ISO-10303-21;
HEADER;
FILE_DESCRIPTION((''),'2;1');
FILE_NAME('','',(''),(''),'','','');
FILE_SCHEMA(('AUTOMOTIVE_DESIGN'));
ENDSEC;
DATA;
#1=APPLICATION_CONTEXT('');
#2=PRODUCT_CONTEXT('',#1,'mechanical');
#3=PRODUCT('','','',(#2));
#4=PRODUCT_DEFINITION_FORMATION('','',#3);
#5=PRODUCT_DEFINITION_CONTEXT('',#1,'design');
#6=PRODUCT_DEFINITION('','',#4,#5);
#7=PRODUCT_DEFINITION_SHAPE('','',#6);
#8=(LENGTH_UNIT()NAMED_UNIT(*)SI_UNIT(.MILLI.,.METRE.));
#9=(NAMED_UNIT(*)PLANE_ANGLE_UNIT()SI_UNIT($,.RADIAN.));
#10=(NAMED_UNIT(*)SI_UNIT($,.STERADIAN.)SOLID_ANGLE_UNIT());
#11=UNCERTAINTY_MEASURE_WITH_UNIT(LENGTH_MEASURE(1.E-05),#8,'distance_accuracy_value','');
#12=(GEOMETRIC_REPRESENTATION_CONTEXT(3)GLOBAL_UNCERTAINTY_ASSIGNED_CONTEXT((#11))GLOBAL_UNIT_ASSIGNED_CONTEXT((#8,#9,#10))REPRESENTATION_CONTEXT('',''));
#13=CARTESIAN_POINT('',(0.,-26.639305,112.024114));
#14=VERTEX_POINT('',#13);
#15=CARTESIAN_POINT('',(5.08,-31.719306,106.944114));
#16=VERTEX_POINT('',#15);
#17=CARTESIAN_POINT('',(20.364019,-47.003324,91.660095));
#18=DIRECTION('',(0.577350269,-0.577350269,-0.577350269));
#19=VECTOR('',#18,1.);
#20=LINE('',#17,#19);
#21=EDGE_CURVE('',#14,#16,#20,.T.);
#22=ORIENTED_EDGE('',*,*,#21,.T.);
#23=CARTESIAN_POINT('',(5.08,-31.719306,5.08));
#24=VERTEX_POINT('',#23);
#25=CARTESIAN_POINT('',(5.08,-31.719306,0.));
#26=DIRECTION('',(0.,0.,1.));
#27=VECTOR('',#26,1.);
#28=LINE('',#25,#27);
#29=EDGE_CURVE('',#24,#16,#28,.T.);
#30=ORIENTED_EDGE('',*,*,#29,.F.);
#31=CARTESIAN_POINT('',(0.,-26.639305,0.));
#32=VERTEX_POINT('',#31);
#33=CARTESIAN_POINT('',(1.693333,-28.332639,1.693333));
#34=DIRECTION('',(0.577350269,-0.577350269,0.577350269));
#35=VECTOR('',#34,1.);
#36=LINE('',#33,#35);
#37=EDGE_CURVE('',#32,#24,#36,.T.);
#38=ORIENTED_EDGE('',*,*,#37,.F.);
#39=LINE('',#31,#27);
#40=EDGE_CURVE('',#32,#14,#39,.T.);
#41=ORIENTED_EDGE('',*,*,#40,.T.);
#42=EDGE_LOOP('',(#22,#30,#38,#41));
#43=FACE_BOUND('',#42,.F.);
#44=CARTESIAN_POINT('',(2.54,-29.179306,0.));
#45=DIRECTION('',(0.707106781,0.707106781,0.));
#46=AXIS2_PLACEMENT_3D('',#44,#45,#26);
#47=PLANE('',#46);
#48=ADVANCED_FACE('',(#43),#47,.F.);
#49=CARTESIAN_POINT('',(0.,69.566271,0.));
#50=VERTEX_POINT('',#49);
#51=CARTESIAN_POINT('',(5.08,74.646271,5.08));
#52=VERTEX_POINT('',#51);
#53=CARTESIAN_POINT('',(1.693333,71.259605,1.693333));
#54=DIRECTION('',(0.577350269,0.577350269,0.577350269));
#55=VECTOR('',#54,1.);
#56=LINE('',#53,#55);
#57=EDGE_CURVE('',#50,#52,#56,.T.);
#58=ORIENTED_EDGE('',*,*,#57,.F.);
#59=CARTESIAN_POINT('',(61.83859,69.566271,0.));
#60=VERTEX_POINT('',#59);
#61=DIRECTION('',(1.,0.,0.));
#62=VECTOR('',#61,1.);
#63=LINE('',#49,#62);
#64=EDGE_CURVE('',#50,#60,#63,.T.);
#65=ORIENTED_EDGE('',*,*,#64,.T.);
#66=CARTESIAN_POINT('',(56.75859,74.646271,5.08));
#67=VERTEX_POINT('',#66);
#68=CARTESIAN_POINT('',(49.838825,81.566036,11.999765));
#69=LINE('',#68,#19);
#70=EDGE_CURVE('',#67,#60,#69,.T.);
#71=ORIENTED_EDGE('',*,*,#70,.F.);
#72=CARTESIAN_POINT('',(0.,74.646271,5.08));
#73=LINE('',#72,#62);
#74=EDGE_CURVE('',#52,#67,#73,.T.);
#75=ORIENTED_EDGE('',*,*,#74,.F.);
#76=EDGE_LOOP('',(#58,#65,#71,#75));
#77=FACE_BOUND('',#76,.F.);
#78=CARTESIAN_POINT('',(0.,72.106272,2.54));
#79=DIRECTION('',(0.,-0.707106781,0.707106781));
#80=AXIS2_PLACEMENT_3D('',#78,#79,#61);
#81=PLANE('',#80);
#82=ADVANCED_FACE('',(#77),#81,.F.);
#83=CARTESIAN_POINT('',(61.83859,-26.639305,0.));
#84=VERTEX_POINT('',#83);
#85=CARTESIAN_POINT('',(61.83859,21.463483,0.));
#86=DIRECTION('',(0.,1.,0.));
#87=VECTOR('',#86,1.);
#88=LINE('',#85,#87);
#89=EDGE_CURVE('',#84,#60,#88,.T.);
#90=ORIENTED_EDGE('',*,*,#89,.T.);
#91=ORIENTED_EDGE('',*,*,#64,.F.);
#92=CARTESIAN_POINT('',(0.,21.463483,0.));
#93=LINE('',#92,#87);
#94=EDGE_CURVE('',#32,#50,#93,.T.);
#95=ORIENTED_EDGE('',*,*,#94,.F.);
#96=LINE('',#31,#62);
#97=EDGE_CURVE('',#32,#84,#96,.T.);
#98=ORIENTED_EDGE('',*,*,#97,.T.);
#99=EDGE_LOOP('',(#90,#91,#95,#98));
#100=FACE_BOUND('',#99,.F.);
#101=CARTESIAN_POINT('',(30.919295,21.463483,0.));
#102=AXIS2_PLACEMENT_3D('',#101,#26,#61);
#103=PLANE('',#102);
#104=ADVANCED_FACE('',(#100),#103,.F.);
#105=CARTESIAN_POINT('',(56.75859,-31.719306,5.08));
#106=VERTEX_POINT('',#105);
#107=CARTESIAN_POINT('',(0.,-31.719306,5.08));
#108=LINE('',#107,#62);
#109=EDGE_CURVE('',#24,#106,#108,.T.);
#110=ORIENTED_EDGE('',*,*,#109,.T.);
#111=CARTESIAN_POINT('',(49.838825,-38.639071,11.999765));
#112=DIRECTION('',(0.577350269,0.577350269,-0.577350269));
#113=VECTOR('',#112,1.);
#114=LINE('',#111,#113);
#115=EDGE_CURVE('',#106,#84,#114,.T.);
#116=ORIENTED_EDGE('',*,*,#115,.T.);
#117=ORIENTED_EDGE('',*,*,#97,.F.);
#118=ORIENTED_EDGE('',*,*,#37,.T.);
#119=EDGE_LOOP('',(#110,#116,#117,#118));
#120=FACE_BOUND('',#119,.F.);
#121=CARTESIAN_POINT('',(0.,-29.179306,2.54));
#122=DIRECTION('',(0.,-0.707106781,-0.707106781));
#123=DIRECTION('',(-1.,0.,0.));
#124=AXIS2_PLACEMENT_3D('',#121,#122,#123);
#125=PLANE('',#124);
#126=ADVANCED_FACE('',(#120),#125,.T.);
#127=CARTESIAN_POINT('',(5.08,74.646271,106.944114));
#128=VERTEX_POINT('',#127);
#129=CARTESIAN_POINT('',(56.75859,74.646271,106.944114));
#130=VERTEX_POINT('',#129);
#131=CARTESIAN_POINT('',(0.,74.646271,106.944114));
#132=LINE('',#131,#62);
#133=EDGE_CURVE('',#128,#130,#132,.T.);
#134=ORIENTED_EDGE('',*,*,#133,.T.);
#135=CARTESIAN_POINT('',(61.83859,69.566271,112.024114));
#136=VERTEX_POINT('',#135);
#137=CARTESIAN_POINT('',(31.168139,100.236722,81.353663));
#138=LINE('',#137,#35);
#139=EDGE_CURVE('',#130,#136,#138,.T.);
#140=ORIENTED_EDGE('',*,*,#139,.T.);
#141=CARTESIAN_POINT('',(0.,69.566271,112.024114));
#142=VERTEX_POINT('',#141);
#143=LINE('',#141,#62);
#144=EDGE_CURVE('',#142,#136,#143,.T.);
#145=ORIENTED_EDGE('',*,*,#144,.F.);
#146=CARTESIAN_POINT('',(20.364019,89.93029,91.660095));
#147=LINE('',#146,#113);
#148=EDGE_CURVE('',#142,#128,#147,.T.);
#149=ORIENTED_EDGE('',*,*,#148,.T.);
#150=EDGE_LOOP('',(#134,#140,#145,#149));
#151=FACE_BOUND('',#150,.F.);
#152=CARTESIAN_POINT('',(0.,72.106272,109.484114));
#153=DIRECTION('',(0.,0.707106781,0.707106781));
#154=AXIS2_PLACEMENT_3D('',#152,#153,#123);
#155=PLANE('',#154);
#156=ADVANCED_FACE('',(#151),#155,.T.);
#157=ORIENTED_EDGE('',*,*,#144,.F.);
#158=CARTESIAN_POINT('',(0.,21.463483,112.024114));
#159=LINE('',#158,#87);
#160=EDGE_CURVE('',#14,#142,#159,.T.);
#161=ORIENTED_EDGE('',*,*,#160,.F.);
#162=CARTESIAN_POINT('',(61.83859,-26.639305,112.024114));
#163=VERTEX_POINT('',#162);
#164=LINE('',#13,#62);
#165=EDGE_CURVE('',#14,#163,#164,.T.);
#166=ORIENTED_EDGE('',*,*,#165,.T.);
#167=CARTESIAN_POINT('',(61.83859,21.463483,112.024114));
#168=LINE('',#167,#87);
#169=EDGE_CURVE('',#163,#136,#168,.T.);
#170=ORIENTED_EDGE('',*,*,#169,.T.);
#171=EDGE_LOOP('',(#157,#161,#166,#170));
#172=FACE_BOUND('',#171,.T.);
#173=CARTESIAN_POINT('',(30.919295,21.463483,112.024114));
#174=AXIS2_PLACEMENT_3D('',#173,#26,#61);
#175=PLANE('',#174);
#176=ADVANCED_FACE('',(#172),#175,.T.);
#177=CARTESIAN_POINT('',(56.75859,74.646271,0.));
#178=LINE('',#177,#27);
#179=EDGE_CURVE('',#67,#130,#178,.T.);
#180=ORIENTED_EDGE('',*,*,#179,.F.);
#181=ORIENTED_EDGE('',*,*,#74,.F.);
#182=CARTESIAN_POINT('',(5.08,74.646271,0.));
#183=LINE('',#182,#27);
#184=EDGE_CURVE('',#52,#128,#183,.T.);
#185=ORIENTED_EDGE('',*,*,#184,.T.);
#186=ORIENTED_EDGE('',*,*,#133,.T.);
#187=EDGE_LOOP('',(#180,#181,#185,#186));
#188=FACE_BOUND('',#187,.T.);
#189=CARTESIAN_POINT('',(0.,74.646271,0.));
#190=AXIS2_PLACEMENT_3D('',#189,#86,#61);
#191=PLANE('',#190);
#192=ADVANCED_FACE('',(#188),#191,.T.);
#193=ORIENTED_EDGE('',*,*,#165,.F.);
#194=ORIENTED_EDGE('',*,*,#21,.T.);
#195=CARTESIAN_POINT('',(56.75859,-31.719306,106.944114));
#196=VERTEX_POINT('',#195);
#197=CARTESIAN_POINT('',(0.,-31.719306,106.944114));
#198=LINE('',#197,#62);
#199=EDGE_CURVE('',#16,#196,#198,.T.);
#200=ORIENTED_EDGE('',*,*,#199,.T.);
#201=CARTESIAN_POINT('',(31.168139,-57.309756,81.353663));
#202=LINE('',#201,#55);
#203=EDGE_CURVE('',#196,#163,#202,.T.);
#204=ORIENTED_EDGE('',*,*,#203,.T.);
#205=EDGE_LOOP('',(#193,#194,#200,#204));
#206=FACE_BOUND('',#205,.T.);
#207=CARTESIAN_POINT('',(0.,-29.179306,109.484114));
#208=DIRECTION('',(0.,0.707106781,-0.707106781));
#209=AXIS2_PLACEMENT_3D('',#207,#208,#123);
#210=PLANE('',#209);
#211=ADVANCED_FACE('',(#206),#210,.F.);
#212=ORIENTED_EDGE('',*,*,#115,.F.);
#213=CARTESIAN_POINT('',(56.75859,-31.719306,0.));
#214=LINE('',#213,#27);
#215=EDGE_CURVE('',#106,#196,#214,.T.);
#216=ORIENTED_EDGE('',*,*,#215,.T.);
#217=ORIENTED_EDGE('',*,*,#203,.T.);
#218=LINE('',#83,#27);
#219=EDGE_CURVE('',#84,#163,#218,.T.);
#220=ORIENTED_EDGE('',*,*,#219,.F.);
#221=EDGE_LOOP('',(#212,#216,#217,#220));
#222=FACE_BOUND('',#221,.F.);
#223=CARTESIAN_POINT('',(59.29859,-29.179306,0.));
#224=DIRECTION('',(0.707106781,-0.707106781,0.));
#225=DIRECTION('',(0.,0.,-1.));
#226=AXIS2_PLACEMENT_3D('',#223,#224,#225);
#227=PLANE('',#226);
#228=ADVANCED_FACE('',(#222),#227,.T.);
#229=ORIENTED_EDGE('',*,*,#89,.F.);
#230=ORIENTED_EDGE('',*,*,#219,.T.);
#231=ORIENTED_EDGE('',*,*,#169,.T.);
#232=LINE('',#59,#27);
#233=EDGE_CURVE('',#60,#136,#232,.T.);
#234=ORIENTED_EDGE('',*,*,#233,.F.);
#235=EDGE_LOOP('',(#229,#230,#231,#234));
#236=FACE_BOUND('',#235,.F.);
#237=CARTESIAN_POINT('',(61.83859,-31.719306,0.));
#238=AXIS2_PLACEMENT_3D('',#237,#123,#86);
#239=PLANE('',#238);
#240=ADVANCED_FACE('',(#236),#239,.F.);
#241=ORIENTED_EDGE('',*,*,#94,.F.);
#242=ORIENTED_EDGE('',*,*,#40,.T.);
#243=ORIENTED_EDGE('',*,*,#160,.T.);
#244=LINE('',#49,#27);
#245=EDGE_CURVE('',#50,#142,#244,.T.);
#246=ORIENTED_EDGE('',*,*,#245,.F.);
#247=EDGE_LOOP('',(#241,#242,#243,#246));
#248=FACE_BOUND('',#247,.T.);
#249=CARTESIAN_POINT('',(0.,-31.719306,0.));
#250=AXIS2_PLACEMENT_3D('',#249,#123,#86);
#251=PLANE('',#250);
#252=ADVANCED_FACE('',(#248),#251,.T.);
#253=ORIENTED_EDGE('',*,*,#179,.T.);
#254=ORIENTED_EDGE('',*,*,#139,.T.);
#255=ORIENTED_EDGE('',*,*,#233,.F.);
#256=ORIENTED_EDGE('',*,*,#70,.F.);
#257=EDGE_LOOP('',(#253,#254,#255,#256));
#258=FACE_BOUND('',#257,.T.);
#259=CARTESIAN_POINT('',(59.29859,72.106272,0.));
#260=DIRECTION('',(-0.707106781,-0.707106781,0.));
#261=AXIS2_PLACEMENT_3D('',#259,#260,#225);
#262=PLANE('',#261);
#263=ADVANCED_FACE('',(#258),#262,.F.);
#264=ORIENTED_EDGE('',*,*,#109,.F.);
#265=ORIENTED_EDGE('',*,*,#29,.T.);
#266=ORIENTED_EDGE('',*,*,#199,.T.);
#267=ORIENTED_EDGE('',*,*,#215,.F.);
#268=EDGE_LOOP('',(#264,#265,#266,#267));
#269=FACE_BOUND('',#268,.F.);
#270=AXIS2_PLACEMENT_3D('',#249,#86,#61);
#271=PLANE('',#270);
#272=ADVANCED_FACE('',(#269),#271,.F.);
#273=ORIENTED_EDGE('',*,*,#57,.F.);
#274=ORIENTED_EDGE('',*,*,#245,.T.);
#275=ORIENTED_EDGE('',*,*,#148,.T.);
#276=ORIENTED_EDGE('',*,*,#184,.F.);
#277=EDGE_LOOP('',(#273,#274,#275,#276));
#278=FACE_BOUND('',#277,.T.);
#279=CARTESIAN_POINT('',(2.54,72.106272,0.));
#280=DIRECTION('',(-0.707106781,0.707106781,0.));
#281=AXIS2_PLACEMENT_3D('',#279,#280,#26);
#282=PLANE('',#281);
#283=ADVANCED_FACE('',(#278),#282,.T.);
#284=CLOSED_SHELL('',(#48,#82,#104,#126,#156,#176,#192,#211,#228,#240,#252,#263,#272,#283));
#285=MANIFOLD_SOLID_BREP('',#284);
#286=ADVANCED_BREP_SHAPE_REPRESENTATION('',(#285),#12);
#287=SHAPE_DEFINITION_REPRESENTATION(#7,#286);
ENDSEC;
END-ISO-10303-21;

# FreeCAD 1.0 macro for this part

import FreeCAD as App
import Part
import Sketcher
from FreeCAD import Vector
Q = App.Units.Quantity


def edges_at(feature, points):
    """Names of the edges that pass closest to the given points."""
    edges = feature.Shape.Edges
    near = lambda p: min(range(len(edges)), key=lambda i: edges[i].distToShape(Part.Vertex(*p))[0])
    return sorted({f"Edge{near(p) + 1}" for p in points})


def add_polygon(sketch, points):
    """Adds a closed chain of lines whose ends are joined by coincident constraints."""
    first, n = sketch.GeometryCount, len(points)
    for a, b in zip(points, points[1:] + points[:1]):
        sketch.addGeometry(Part.LineSegment(App.Vector(*a, 0), App.Vector(*b, 0)), False)
    for i in range(n):
        sketch.addConstraint(Sketcher.Constraint("Coincident", first + i, 2, first + (i + 1) % n, 1))

doc = App.newDocument("Part")
body = doc.addObject("PartDesign::Body", "Body")

sketch1 = doc.addObject("Sketcher::SketchObject", "Sketch")
body.addObject(sketch1)
sketch1.AttachmentSupport = (doc.XY_Plane, [""])
sketch1.MapMode = "FlatFace"
add_polygon(sketch1, [(0, 74.646271), (0, -31.719306), (61.83859, -31.719306), (61.83859, 74.646271)])
sketch1.addConstraint(Sketcher.Constraint("Vertical", 0))
sketch1.addConstraint(Sketcher.Constraint("Horizontal", 1))
sketch1.addConstraint(Sketcher.Constraint("Vertical", 2))
sketch1.addConstraint(Sketcher.Constraint("Horizontal", 3))
sketch1.addConstraint(Sketcher.Constraint("PointOnObject", 0, 2, -2))
sketch1.addConstraint(Sketcher.Constraint("DistanceX", 1, 1, 1, 2, Q("61.83859 mm")))
sketch1.addConstraint(Sketcher.Constraint("DistanceY", 0, 2, 0, 1, Q("106.365577 mm")))
sketch1.addConstraint(Sketcher.Constraint("DistanceY", -1, 1, 2, 2, Q("74.646271 mm")))
pad1 = doc.addObject("PartDesign::Pad", "Pad")
body.addObject(pad1)
pad1.Profile = sketch1
pad1.Length = 112.024114
doc.recompute()

chamfer = doc.addObject("PartDesign::Chamfer", "Chamfer")
body.addObject(chamfer)
chamfer.Base = (pad1, edges_at(pad1, [
    (0, -31.719, 56.012),
    (61.839, -31.719, 56.012),
    (30.919, -31.719, 0),
    (30.919, -31.719, 112.024),
]))
chamfer.Size = Q("0.2 in")
doc.recompute()

chamfer2 = doc.addObject("PartDesign::Chamfer", "Chamfer001")
body.addObject(chamfer2)
chamfer2.Base = (chamfer, edges_at(chamfer, [
    (61.839, 74.646, 56.012),
    (0, 74.646, 56.012),
    (30.919, 74.646, 0),
    (30.919, 74.646, 112.024),
]))
chamfer2.Size = Q("0.2 in")

doc.recompute()
